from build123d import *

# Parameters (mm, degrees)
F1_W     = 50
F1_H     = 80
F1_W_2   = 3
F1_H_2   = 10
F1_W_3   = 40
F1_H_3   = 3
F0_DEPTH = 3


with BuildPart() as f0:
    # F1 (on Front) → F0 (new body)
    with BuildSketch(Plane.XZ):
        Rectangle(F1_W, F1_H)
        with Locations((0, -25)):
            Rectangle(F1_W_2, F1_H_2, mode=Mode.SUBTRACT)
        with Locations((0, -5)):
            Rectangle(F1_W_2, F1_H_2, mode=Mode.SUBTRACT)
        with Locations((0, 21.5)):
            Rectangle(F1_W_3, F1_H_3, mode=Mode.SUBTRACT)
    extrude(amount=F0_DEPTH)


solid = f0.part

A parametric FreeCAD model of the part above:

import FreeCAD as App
import Part
import Sketcher

V = App.Vector


def add_polygon(sketch, points):
    """Adds a closed chain of lines whose ends are joined by coincident constraints."""
    first, n = sketch.GeometryCount, len(points)
    for a, b in zip(points, points[1:] + points[:1]):
        sketch.addGeometry(Part.LineSegment(App.Vector(*a, 0), App.Vector(*b, 0)), False)
    for i in range(n):
        sketch.addConstraint(Sketcher.Constraint("Coincident", first + i, 2, first + (i + 1) % n, 1))

doc = App.newDocument("Part")
body = doc.addObject("PartDesign::Body", "Body")

# Sketch on XZ plane
sketch1 = body.newObject("Sketcher::SketchObject", "Sketch")
sketch1.AttachmentSupport = (doc.getObject("XZ_Plane"), [""])
sketch1.MapMode = "FlatFace"
add_polygon(sketch1, [(-25, 40), (-25, -40), (25, -40), (25, 40)])  # lines 0-3
add_polygon(sketch1, [(1.5, -30), (-1.5, -30), (-1.5, -20), (1.5, -20)])  # lines 4-7
add_polygon(sketch1, [(1.5, -10), (-1.5, -10), (-1.5, 0), (1.5, 0)])  # lines 8-11
add_polygon(sketch1, [(20, 20), (-20, 20), (-20, 23), (20, 23)])  # lines 12-15
sketch1.addConstraint([
    Sketcher.Constraint("Vertical", 0),
    Sketcher.Constraint("Horizontal", 1),
    Sketcher.Constraint("Vertical", 2),
    Sketcher.Constraint("Horizontal", 3),
    Sketcher.Constraint("Horizontal", 4),
    Sketcher.Constraint("Vertical", 5),
    Sketcher.Constraint("Horizontal", 6),
    Sketcher.Constraint("Vertical", 7),
    Sketcher.Constraint("Horizontal", 8),
    Sketcher.Constraint("Vertical", 9),
    Sketcher.Constraint("Horizontal", 10),
    Sketcher.Constraint("Vertical", 11),
    Sketcher.Constraint("Horizontal", 12),
    Sketcher.Constraint("Vertical", 13),
    Sketcher.Constraint("Horizontal", 14),
    Sketcher.Constraint("Vertical", 15),
    Sketcher.Constraint("Symmetric", 0, 2, 2, 2, -1, 1),
    Sketcher.Constraint("Symmetric", 9, 2, 10, 2, -1, 1),
    Sketcher.Constraint("Vertical", 5, 2, 8, 2),
    Sketcher.Constraint("Vertical", 7, 2, 10, 2),
    Sketcher.Constraint("Equal", 7, 9),
    Sketcher.Constraint("Equal", 10, 13),
    Sketcher.Constraint("DistanceX", 1, 1, 1, 2, 50.0),
    Sketcher.Constraint("DistanceX", 4, 2, 4, 1, 3.0),
    Sketcher.Constraint("DistanceX", 12, 2, 12, 1, 40.0),
    Sketcher.Constraint("DistanceY", 0, 2, 0, 1, 80.0),
    Sketcher.Constraint("DistanceY", 5, 1, 5, 2, 10.0),
    Sketcher.Constraint("DistanceY", 4, 2, -1, 1, 30.0),
    Sketcher.Constraint("DistanceX", 12, 2, -1, 1, 20.0),
    Sketcher.Constraint("DistanceY", -1, 1, 12, 2, 20.0),
])
pad1 = body.newObject("PartDesign::Pad", "Pad")
pad1.Profile = sketch1
pad1.Length = 3

doc.recompute()
